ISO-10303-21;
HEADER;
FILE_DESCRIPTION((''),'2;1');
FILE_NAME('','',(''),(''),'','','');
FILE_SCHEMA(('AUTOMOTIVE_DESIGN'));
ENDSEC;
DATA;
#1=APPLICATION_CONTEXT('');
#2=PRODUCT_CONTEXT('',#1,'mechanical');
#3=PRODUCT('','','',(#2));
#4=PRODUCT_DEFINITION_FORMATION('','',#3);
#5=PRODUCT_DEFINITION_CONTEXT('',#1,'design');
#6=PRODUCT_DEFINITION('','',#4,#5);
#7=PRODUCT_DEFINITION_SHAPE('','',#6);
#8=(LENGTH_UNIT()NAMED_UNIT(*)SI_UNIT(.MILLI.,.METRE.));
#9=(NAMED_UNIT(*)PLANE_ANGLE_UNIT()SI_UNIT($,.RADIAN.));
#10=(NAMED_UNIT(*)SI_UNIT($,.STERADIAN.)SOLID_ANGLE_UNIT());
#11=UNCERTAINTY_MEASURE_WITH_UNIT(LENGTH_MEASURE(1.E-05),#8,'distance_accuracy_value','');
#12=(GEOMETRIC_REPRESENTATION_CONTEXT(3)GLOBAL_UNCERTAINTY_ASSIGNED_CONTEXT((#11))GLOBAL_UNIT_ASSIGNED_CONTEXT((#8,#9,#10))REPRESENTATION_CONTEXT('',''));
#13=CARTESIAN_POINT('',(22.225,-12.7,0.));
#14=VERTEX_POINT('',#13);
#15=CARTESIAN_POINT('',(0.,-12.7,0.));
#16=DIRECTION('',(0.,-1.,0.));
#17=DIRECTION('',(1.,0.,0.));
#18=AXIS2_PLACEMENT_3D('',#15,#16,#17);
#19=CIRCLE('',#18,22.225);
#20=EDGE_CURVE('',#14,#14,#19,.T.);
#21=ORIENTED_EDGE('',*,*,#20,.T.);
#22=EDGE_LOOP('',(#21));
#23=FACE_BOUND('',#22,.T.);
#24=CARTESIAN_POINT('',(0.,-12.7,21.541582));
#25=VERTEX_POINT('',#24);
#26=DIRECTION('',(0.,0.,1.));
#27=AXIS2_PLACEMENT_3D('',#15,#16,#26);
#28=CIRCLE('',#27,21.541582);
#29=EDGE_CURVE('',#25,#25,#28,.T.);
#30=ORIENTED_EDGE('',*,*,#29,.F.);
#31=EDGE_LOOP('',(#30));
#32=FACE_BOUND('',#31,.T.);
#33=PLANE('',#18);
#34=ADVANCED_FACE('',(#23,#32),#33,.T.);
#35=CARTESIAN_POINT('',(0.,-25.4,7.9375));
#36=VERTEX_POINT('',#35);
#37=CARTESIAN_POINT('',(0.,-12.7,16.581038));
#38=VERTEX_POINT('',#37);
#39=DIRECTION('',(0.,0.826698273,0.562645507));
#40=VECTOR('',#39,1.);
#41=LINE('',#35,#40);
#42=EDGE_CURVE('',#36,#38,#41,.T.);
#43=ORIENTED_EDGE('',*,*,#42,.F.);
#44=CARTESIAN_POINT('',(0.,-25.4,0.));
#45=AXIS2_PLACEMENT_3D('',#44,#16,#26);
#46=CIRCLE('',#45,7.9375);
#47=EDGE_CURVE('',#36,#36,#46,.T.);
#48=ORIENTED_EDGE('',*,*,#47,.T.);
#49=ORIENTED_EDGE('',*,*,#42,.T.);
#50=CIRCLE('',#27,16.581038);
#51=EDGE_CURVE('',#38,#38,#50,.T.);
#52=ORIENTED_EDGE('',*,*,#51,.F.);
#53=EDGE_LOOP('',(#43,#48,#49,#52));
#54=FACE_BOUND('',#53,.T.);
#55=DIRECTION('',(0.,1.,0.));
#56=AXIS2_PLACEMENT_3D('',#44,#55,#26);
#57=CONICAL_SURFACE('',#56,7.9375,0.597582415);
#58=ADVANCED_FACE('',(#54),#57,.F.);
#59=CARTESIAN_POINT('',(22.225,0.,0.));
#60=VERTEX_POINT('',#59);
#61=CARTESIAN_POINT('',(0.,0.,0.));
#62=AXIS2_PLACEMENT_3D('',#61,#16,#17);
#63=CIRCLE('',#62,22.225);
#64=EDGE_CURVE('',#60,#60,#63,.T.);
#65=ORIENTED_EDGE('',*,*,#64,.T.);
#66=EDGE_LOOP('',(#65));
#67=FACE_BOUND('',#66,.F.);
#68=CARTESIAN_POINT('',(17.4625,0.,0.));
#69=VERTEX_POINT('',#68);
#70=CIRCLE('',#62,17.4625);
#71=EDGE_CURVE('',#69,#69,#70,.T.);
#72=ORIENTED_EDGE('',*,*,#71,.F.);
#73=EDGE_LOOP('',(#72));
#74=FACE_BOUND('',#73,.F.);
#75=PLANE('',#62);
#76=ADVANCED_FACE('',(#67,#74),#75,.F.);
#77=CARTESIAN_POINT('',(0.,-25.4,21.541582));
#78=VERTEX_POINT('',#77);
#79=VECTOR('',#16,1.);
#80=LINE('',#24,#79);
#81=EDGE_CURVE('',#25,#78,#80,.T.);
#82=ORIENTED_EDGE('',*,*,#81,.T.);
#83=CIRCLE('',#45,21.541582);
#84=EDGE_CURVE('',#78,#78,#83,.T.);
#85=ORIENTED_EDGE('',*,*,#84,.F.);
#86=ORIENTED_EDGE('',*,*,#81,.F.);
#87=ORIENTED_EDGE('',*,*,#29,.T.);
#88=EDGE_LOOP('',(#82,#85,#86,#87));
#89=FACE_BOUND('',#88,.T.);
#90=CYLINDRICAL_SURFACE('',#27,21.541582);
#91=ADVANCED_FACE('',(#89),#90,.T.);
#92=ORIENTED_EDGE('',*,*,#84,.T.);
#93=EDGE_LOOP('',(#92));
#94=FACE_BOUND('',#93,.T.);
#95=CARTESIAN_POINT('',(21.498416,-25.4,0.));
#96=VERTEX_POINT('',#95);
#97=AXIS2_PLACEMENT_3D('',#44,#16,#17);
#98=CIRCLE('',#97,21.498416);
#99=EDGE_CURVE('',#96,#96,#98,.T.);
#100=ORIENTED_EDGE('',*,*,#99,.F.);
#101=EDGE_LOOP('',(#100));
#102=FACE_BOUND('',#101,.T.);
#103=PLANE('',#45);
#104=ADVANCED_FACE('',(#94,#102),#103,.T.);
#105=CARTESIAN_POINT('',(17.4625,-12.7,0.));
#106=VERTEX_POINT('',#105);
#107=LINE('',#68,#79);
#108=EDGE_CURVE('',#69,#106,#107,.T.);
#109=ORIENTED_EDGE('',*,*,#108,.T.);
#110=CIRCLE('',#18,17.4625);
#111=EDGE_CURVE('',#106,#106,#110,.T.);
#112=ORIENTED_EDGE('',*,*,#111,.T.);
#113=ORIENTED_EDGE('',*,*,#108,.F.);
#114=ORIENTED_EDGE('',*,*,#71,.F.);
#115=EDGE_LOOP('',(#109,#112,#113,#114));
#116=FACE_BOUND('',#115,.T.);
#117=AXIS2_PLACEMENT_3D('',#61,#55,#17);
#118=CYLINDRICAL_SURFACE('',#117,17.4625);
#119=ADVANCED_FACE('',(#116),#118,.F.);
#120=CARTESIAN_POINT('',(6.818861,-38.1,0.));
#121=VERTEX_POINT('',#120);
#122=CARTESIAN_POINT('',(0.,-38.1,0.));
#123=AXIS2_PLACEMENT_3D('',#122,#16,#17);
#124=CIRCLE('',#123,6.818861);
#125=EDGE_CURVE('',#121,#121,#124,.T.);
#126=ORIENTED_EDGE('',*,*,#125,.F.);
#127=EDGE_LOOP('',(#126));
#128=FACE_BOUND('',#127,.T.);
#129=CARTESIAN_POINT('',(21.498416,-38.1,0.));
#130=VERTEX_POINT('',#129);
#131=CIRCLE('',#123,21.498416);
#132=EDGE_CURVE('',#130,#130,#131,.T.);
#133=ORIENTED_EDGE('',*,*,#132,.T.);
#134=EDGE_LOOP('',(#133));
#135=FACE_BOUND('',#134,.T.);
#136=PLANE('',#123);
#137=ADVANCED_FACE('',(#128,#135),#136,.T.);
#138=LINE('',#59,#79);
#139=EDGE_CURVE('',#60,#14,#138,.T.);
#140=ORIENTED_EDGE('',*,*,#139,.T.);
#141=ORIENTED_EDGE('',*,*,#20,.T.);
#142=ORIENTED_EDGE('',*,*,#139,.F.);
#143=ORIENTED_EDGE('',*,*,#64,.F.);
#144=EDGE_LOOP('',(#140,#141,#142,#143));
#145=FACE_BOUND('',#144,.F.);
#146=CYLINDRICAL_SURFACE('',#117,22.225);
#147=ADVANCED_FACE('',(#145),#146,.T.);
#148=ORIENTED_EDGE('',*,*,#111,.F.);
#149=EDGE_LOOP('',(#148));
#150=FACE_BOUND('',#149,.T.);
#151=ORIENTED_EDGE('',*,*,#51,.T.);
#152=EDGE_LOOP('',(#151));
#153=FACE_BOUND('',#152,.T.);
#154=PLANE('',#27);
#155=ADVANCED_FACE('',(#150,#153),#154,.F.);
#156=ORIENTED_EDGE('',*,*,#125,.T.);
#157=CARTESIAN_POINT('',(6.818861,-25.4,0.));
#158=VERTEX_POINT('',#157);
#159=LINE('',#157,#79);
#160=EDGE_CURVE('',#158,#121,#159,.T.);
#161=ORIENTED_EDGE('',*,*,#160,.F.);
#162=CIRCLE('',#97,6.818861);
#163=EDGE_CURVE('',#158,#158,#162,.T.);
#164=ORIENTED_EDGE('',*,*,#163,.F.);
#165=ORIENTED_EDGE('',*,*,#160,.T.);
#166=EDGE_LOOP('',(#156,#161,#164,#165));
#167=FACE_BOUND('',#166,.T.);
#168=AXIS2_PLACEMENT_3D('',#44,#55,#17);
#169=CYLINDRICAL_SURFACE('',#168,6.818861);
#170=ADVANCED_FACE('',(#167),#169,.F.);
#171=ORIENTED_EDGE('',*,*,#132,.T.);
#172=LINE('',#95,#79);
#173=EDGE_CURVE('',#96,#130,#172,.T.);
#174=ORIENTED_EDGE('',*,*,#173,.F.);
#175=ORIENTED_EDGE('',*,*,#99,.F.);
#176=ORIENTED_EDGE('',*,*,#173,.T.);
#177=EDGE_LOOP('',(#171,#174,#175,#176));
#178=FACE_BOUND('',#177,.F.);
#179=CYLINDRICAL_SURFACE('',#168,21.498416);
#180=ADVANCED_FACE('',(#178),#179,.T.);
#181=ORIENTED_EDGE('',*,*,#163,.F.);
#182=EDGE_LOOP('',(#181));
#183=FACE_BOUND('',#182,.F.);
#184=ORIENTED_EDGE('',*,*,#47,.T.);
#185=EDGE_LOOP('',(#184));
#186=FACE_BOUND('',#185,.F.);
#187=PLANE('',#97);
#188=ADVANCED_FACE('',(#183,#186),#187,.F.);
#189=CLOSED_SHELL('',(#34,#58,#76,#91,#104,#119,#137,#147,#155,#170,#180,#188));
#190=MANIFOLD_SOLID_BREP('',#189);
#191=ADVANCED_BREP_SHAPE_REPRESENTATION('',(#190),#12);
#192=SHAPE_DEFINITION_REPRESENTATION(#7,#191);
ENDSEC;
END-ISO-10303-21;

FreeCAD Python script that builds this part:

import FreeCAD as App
import Part
import Sketcher
from FreeCAD import Vector
Q = App.Units.Quantity


def add_polygon(sketch, points):
    """Adds a closed chain of lines whose ends are joined by coincident constraints."""
    first, n = sketch.GeometryCount, len(points)
    for a, b in zip(points, points[1:] + points[:1]):
        sketch.addGeometry(Part.LineSegment(App.Vector(*a, 0), App.Vector(*b, 0)), False)
    for i in range(n):
        sketch.addConstraint(Sketcher.Constraint("Coincident", first + i, 2, first + (i + 1) % n, 1))

doc = App.newDocument("Part")
body = doc.addObject("PartDesign::Body", "Body")

# Sketch on XZ plane
sketch1 = body.newObject("Sketcher::SketchObject", "Sketch")
sketch1.AttachmentSupport = (doc.getObject("XZ_Plane"), [""])
sketch1.MapMode = "FlatFace"
sketch1.addGeometry([
    Part.Circle(Vector(0, 0, 0), Vector(0, 0, 1), 22),
    Part.Circle(Vector(0, 0, 0), Vector(0, 0, 1), 17),
], False)
sketch1.addConstraint([
    Sketcher.Constraint("Coincident", 0, 3, -1, 1),
    Sketcher.Constraint("Coincident", 1, 3, -1, 1),
    Sketcher.Constraint("Diameter", 0, Q("1.75 in")),
    Sketcher.Constraint("Diameter", 1, Q("1.375 in")),
])
pad1 = body.newObject("PartDesign::Pad", "Pad")
pad1.Profile = sketch1
pad1.Length = Q("0.5 in")

# Sketch on YZ plane
sketch2 = body.newObject("Sketcher::SketchObject", "Sketch001")
sketch2.AttachmentSupport = (doc.getObject("YZ_Plane"), [""])
sketch2.MapMode = "FlatFace"
add_polygon(sketch2, [(-25.4, 7.9), (-12.7, 16.6), (-12.7, 21.5), (-25.4, 21.5)])  # lines 0-3
sketch2.addConstraint([
    Sketcher.Constraint("Vertical", 1),
    Sketcher.Constraint("Horizontal", 2),
    Sketcher.Constraint("Vertical", 3),
    Sketcher.Constraint("DistanceX", 2, 2, 2, 1, Q("0.5 in")),
    Sketcher.Constraint("DistanceX", 2, 2, -1, 1, Q("1 in")),
    Sketcher.Constraint("DistanceY", -1, 1, 3, 2, Q("0.3125 in")),
    Sketcher.Constraint("DistanceY", 3, 2, 3, 1, Q("13.604082 mm")),
    Sketcher.Constraint("DistanceY", 1, 1, 1, 2, Q("4.960544 mm")),
])
revolution = body.newObject("PartDesign::Revolution", "Revolution")
revolution.Profile = sketch2
revolution.ReferenceAxis = (sketch2, ["H_Axis"])
revolution.Angle = 360

# Sketch on XZ plane
sketch3 = body.newObject("Sketcher::SketchObject", "Sketch002")
sketch3.AttachmentSupport = (doc.getObject("XZ_Plane"), [""])
sketch3.MapMode = "FlatFace"
sketch3.AttachmentOffset = App.Placement(Vector(0, 0, 1 * 25.4), App.Rotation())
sketch3.addGeometry([
    Part.Circle(Vector(0, 0, 0), Vector(0, 0, 1), 21),
    Part.Circle(Vector(0, 0, 0), Vector(0, 0, 1), 7),
], False)
sketch3.addConstraint([
    Sketcher.Constraint("Coincident", 0, 3, -1, 1),
    Sketcher.Constraint("Coincident", 1, 3, -1, 1),
    Sketcher.Constraint("Diameter", 0, Q("42.996832 mm")),
    Sketcher.Constraint("Diameter", 1, Q("13.637722 mm")),
])
pad2 = body.newObject("PartDesign::Pad", "Pad001")
pad2.Profile = sketch3
pad2.Length = Q("0.5 in")

doc.recompute()
